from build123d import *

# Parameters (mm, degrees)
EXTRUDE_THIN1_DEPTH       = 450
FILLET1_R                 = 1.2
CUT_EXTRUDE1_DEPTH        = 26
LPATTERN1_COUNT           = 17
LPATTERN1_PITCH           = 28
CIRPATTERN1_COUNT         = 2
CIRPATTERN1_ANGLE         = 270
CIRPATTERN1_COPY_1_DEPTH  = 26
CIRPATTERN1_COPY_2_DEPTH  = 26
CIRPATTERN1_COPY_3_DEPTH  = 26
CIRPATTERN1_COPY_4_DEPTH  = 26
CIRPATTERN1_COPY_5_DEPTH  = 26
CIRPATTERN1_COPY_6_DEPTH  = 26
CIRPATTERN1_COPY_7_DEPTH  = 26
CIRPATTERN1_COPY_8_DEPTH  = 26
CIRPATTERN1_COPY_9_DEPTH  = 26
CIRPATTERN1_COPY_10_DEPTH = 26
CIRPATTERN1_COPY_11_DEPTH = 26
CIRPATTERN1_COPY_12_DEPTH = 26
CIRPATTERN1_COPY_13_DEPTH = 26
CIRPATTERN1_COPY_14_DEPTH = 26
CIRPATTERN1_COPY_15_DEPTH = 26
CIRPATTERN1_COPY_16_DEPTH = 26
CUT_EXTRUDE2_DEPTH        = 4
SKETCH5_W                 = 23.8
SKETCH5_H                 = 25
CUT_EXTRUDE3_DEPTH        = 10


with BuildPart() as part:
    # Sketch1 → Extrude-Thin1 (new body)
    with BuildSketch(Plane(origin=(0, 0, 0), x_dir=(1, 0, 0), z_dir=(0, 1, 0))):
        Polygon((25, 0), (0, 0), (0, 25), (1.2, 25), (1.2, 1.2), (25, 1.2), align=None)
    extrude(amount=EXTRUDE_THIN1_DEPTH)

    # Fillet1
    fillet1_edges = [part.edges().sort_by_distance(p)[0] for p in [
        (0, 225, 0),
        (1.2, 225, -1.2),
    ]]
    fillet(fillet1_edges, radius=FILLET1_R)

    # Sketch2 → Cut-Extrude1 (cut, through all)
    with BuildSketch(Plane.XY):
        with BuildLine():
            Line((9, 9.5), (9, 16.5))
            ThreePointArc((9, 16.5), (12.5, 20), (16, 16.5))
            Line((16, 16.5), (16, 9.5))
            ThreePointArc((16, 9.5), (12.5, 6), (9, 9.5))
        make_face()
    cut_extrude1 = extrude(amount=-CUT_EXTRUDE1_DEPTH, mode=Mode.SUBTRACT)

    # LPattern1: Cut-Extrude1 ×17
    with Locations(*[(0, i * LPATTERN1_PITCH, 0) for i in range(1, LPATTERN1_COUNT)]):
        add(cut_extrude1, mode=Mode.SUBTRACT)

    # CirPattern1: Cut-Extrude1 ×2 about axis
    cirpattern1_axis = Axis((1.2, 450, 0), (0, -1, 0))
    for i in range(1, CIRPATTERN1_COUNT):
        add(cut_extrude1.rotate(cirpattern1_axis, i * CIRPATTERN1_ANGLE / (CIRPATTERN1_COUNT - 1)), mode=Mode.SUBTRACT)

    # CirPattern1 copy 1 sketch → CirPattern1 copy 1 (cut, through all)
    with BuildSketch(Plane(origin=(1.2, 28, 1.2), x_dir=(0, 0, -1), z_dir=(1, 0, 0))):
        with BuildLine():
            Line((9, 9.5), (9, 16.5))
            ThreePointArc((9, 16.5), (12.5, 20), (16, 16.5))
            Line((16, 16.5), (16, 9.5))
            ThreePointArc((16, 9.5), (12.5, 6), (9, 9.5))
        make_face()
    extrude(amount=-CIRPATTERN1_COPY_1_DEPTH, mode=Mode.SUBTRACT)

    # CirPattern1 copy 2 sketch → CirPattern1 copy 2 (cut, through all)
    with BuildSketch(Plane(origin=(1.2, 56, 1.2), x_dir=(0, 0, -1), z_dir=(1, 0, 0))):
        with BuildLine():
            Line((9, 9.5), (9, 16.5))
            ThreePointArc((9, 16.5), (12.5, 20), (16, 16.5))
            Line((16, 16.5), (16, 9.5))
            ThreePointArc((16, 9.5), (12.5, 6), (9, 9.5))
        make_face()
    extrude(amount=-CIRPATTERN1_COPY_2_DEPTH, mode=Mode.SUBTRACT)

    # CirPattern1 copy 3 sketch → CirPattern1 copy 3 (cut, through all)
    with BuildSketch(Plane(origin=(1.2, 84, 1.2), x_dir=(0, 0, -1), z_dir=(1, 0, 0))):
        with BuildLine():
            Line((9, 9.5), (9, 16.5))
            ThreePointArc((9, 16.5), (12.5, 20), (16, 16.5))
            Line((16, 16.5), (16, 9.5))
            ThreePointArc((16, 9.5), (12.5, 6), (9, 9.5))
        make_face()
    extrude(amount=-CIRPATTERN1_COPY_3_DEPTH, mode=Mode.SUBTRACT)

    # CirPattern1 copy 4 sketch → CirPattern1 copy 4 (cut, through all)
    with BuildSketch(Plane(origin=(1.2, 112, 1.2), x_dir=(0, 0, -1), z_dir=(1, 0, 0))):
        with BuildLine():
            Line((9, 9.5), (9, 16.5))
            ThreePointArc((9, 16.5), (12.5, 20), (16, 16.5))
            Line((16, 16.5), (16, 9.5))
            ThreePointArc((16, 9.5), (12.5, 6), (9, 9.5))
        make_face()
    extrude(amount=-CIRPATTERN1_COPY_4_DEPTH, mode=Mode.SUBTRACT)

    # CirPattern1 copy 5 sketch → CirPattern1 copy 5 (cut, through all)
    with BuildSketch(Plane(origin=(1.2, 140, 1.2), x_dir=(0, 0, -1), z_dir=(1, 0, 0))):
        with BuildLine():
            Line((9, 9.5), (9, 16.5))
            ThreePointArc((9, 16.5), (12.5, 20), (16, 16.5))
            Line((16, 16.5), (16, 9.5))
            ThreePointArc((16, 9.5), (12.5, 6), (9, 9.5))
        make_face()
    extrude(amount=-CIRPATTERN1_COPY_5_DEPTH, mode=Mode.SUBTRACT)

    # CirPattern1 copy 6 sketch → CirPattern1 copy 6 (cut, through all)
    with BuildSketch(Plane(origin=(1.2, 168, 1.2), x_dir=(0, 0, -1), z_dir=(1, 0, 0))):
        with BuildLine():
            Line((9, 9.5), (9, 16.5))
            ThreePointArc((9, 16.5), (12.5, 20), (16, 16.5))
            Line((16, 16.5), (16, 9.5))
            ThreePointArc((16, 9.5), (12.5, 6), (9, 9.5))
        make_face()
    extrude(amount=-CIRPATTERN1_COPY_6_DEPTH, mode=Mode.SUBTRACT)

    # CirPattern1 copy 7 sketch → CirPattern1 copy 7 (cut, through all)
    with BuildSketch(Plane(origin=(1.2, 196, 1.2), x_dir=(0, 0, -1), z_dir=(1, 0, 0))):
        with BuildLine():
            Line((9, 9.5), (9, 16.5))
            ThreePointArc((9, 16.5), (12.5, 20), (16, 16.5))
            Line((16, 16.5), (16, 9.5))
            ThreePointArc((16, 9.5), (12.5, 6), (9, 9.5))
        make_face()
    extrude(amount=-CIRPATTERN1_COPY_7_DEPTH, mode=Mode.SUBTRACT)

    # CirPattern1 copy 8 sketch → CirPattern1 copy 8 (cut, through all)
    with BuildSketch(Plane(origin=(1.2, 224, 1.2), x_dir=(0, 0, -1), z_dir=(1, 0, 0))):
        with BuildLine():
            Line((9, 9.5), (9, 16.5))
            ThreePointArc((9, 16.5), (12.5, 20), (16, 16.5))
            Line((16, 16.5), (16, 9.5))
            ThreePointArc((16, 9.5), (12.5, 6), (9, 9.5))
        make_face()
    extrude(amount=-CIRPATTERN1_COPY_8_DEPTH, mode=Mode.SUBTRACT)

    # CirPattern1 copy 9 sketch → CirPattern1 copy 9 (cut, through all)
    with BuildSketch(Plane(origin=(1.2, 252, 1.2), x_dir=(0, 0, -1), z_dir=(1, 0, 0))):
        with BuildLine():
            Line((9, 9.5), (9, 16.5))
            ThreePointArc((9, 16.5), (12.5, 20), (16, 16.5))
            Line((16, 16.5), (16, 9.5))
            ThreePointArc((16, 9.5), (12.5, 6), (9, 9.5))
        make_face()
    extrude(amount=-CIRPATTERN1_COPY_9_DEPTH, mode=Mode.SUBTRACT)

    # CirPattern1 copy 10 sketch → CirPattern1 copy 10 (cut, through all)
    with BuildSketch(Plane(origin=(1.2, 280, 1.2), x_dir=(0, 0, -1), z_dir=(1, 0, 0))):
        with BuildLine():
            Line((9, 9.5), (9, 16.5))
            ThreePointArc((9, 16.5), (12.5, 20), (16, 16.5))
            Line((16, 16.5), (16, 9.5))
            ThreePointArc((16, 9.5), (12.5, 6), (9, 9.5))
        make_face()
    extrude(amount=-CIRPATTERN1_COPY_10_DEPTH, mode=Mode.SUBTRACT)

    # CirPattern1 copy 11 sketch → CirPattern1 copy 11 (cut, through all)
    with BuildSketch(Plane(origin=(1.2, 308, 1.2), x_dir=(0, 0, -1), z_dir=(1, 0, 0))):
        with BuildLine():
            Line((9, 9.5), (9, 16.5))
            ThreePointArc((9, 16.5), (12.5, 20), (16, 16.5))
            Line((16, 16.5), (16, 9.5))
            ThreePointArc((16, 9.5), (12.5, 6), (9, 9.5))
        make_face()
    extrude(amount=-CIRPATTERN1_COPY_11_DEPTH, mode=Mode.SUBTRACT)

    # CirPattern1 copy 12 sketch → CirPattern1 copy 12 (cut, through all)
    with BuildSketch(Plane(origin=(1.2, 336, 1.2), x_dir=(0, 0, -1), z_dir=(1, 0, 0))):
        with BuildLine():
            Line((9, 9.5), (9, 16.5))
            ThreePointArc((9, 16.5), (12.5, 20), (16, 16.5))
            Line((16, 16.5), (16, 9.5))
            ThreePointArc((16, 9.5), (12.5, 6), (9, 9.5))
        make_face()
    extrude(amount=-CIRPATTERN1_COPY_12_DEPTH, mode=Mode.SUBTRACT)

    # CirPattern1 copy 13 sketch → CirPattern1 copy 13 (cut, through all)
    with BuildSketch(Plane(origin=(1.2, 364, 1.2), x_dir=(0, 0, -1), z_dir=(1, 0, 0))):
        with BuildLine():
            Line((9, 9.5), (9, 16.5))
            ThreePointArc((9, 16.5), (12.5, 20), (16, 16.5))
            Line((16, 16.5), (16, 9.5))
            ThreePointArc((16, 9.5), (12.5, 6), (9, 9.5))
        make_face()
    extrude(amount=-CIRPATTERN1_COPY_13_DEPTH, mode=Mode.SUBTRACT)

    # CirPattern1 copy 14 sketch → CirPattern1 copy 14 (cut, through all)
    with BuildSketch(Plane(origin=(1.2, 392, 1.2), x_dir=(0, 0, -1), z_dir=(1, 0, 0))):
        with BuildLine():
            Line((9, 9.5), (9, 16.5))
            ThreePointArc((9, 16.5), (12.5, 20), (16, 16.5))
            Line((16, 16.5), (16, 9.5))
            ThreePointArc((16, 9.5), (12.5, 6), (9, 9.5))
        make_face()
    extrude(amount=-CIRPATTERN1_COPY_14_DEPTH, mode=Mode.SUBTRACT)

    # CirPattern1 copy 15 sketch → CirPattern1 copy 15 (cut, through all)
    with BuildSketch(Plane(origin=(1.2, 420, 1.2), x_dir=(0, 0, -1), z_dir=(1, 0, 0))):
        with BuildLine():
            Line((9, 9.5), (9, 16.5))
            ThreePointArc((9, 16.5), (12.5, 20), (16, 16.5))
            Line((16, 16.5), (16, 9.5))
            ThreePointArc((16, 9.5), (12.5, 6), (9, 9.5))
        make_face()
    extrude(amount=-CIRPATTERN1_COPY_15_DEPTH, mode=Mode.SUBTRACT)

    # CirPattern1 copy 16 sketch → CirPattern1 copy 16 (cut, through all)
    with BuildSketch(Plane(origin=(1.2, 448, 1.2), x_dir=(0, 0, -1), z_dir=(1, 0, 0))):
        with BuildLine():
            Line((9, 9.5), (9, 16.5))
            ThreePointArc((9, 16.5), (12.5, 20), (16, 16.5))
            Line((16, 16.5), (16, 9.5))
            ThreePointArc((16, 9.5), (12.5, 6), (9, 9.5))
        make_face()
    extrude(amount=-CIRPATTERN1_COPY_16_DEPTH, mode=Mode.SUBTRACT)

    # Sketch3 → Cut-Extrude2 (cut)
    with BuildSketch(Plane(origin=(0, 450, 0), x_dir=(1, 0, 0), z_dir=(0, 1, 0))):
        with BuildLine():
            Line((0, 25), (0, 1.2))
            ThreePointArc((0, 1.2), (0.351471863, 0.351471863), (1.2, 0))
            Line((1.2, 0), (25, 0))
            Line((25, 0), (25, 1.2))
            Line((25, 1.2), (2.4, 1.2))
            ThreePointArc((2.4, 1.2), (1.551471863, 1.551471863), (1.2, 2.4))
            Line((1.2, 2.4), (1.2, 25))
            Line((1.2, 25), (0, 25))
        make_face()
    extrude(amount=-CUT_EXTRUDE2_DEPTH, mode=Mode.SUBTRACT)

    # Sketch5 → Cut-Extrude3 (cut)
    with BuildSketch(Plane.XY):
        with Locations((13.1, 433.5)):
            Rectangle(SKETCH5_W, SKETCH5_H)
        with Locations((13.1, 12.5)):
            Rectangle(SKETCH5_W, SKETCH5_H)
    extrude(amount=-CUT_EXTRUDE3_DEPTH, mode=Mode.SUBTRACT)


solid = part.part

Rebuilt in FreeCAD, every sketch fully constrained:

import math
import FreeCAD as App
import Part
import Sketcher


def edges_at(feature, points):
    """Names of the edges that pass closest to the given points."""
    edges = feature.Shape.Edges
    near = lambda p: min(range(len(edges)), key=lambda i: edges[i].distToShape(Part.Vertex(*p))[0])
    return sorted({f"Edge{near(p) + 1}" for p in points})


def add_polygon(sketch, points):
    """Adds a closed chain of lines whose ends are joined by coincident constraints."""
    first, n = sketch.GeometryCount, len(points)
    for a, b in zip(points, points[1:] + points[:1]):
        sketch.addGeometry(Part.LineSegment(App.Vector(*a, 0), App.Vector(*b, 0)), False)
    for i in range(n):
        sketch.addConstraint(Sketcher.Constraint("Coincident", first + i, 2, first + (i + 1) % n, 1))

doc = App.newDocument("Part")
body = doc.addObject("PartDesign::Body", "Body")

sketch1 = body.newObject("Sketcher::SketchObject", "Sketch")
sketch1.AttachmentSupport = (doc.getObject("XZ_Plane"), [""])
sketch1.MapMode = "FlatFace"
add_polygon(sketch1, [(0, 0), (25, 0), (25, -1.2), (1.2, -1.2), (1.2, -25), (0, -25)])
sketch1.addConstraint([
    Sketcher.Constraint("Horizontal", 0),
    Sketcher.Constraint("Vertical", 1),
    Sketcher.Constraint("Horizontal", 2),
    Sketcher.Constraint("Vertical", 3),
    Sketcher.Constraint("Horizontal", 4),
    Sketcher.Constraint("Vertical", 5),
    Sketcher.Constraint("Coincident", 5, 2, -1, 1),
    Sketcher.Constraint("Equal", 4, 1),
    Sketcher.Constraint("Equal", 2, 3),
    Sketcher.Constraint("DistanceX", 0, 1, 0, 2, 25.0),
    Sketcher.Constraint("DistanceX", 2, 2, 2, 1, 23.8),
])
pad1 = body.newObject("PartDesign::Pad", "Pad")
pad1.Profile = sketch1
pad1.Length = 450
pad1.Reversed = True
doc.recompute()

fillet = body.newObject("PartDesign::Fillet", "Fillet")
fillet.Base = (pad1, edges_at(pad1, [(0, 225, 0), (1.2, 225, -1.2)]))
fillet.Radius = 1.2

sketch2 = body.newObject("Sketcher::SketchObject", "Sketch001")
sketch2.AttachmentSupport = (doc.getObject("XY_Plane"), [""])
sketch2.MapMode = "FlatFace"
sketch2.addGeometry([
    Part.LineSegment(App.Vector(9, 16.5, 0), App.Vector(9, 9.5, 0)),
    Part.ArcOfCircle(Part.Circle(App.Vector(12.5, 9.5, 0), App.Vector(0, 0, 1), 3.5), math.radians(180), math.radians(360)),
    Part.LineSegment(App.Vector(16, 9.5, 0), App.Vector(16, 16.5, 0)),
    Part.ArcOfCircle(Part.Circle(App.Vector(12.5, 16.5, 0), App.Vector(0, 0, 1), 3.5), math.radians(0), math.radians(180)),
], False)
sketch2.addConstraint([
    Sketcher.Constraint("Tangent", 0, 2, 1, 1),
    Sketcher.Constraint("Tangent", 1, 2, 2, 1),
    Sketcher.Constraint("Tangent", 2, 2, 3, 1),
    Sketcher.Constraint("Tangent", 3, 2, 0, 1),
    Sketcher.Constraint("Vertical", 0),
    Sketcher.Constraint("Vertical", 2),
    Sketcher.Constraint("Radius", 1, 3.5),
    Sketcher.Constraint("DistanceY", 0, 2, 0, 1, 7.0),
    Sketcher.Constraint("DistanceX", -1, 1, 0, 2, 9.0),
    Sketcher.Constraint("DistanceY", -1, 1, 1, 3, 9.5),
])
pocket1 = body.newObject("PartDesign::Pocket", "Pocket")
pocket1.Profile = sketch2
pocket1.Type = "ThroughAll"
doc.recompute()

linearpattern = body.newObject("PartDesign::LinearPattern", "LinearPattern")
linearpattern.Originals = [pocket1]
linearpattern.Direction = (doc.getObject("Y_Axis"), [""])
linearpattern.Mode = "offset"
linearpattern.Offset = 28
linearpattern.Occurrences = 17
body.Tip = linearpattern
doc.recompute()

datumline = body.newObject("PartDesign::Line", "DatumLine")
datumline.Placement = App.Placement(App.Vector(1.2, 0, 0), App.Rotation(App.Vector(0, 0, 1), App.Vector(0, -1, 0)))
polarpattern = body.newObject("PartDesign::PolarPattern", "PolarPattern")
polarpattern.Originals = [pocket1]
polarpattern.Axis = (datumline, [""])
polarpattern.Angle = 270
polarpattern.Occurrences = 2
body.Tip = polarpattern

sketch3 = body.newObject("Sketcher::SketchObject", "Sketch002")
sketch3.AttachmentSupport = (doc.getObject("YZ_Plane"), [""])
sketch3.MapMode = "FlatFace"
sketch3.AttachmentOffset = App.Placement(App.Vector(0, 0, 1.2), App.Rotation())
sketch3.addGeometry([
    Part.LineSegment(App.Vector(44.5, -7.8, 0), App.Vector(37.5, -7.8, 0)),
    Part.ArcOfCircle(Part.Circle(App.Vector(37.5, -11.3, 0), App.Vector(0, 0, 1), 3.5), math.radians(90), math.radians(270)),
    Part.LineSegment(App.Vector(37.5, -14.8, 0), App.Vector(44.5, -14.8, 0)),
    Part.ArcOfCircle(Part.Circle(App.Vector(44.5, -11.3, 0), App.Vector(0, 0, 1), 3.5), math.radians(-90), math.radians(90)),
], False)
sketch3.addConstraint([
    Sketcher.Constraint("Tangent", 0, 2, 1, 1),
    Sketcher.Constraint("Tangent", 1, 2, 2, 1),
    Sketcher.Constraint("Tangent", 2, 2, 3, 1),
    Sketcher.Constraint("Tangent", 3, 2, 0, 1),
    Sketcher.Constraint("Horizontal", 0),
    Sketcher.Constraint("Horizontal", 2),
    Sketcher.Constraint("Radius", 1, 3.5),
    Sketcher.Constraint("DistanceX", 0, 2, 0, 1, 7.0),
    Sketcher.Constraint("DistanceX", -1, 1, 1, 3, 37.5),
    Sketcher.Constraint("DistanceY", 1, 3, -1, 1, 11.3),
])
pocket2 = body.newObject("PartDesign::Pocket", "Pocket001")
pocket2.Profile = sketch3
pocket2.Type = "ThroughAll"

sketch4 = body.newObject("Sketcher::SketchObject", "Sketch003")
sketch4.AttachmentSupport = (doc.getObject("YZ_Plane"), [""])
sketch4.MapMode = "FlatFace"
sketch4.AttachmentOffset = App.Placement(App.Vector(0, 0, 1.2), App.Rotation())
sketch4.addGeometry([
    Part.LineSegment(App.Vector(72.5, -7.8, 0), App.Vector(65.5, -7.8, 0)),
    Part.ArcOfCircle(Part.Circle(App.Vector(65.5, -11.3, 0), App.Vector(0, 0, 1), 3.5), math.radians(90), math.radians(270)),
    Part.LineSegment(App.Vector(65.5, -14.8, 0), App.Vector(72.5, -14.8, 0)),
    Part.ArcOfCircle(Part.Circle(App.Vector(72.5, -11.3, 0), App.Vector(0, 0, 1), 3.5), math.radians(-90), math.radians(90)),
], False)
sketch4.addConstraint([
    Sketcher.Constraint("Tangent", 0, 2, 1, 1),
    Sketcher.Constraint("Tangent", 1, 2, 2, 1),
    Sketcher.Constraint("Tangent", 2, 2, 3, 1),
    Sketcher.Constraint("Tangent", 3, 2, 0, 1),
    Sketcher.Constraint("Horizontal", 0),
    Sketcher.Constraint("Horizontal", 2),
    Sketcher.Constraint("Radius", 1, 3.5),
    Sketcher.Constraint("DistanceX", 0, 2, 0, 1, 7.0),
    Sketcher.Constraint("DistanceX", -1, 1, 1, 3, 65.5),
    Sketcher.Constraint("DistanceY", 1, 3, -1, 1, 11.3),
])
pocket3 = body.newObject("PartDesign::Pocket", "Pocket002")
pocket3.Profile = sketch4
pocket3.Type = "ThroughAll"

sketch5 = body.newObject("Sketcher::SketchObject", "Sketch004")
sketch5.AttachmentSupport = (doc.getObject("YZ_Plane"), [""])
sketch5.MapMode = "FlatFace"
sketch5.AttachmentOffset = App.Placement(App.Vector(0, 0, 1.2), App.Rotation())
sketch5.addGeometry([
    Part.LineSegment(App.Vector(100.5, -7.8, 0), App.Vector(93.5, -7.8, 0)),
    Part.ArcOfCircle(Part.Circle(App.Vector(93.5, -11.3, 0), App.Vector(0, 0, 1), 3.5), math.radians(90), math.radians(270)),
    Part.LineSegment(App.Vector(93.5, -14.8, 0), App.Vector(100.5, -14.8, 0)),
    Part.ArcOfCircle(Part.Circle(App.Vector(100.5, -11.3, 0), App.Vector(0, 0, 1), 3.5), math.radians(-90), math.radians(90)),
], False)
sketch5.addConstraint([
    Sketcher.Constraint("Tangent", 0, 2, 1, 1),
    Sketcher.Constraint("Tangent", 1, 2, 2, 1),
    Sketcher.Constraint("Tangent", 2, 2, 3, 1),
    Sketcher.Constraint("Tangent", 3, 2, 0, 1),
    Sketcher.Constraint("Horizontal", 0),
    Sketcher.Constraint("Horizontal", 2),
    Sketcher.Constraint("Radius", 1, 3.5),
    Sketcher.Constraint("DistanceX", 0, 2, 0, 1, 7.0),
    Sketcher.Constraint("DistanceX", -1, 1, 1, 3, 93.5),
    Sketcher.Constraint("DistanceY", 1, 3, -1, 1, 11.3),
])
pocket4 = body.newObject("PartDesign::Pocket", "Pocket003")
pocket4.Profile = sketch5
pocket4.Type = "ThroughAll"

sketch6 = body.newObject("Sketcher::SketchObject", "Sketch005")
sketch6.AttachmentSupport = (doc.getObject("YZ_Plane"), [""])
sketch6.MapMode = "FlatFace"
sketch6.AttachmentOffset = App.Placement(App.Vector(0, 0, 1.2), App.Rotation())
sketch6.addGeometry([
    Part.LineSegment(App.Vector(128.5, -7.8, 0), App.Vector(121.5, -7.8, 0)),
    Part.ArcOfCircle(Part.Circle(App.Vector(121.5, -11.3, 0), App.Vector(0, 0, 1), 3.5), math.radians(90), math.radians(270)),
    Part.LineSegment(App.Vector(121.5, -14.8, 0), App.Vector(128.5, -14.8, 0)),
    Part.ArcOfCircle(Part.Circle(App.Vector(128.5, -11.3, 0), App.Vector(0, 0, 1), 3.5), math.radians(-90), math.radians(90)),
], False)
sketch6.addConstraint([
    Sketcher.Constraint("Tangent", 0, 2, 1, 1),
    Sketcher.Constraint("Tangent", 1, 2, 2, 1),
    Sketcher.Constraint("Tangent", 2, 2, 3, 1),
    Sketcher.Constraint("Tangent", 3, 2, 0, 1),
    Sketcher.Constraint("Horizontal", 0),
    Sketcher.Constraint("Horizontal", 2),
    Sketcher.Constraint("Radius", 1, 3.5),
    Sketcher.Constraint("DistanceX", 0, 2, 0, 1, 7.0),
    Sketcher.Constraint("DistanceX", -1, 1, 1, 3, 121.5),
    Sketcher.Constraint("DistanceY", 1, 3, -1, 1, 11.3),
])
pocket5 = body.newObject("PartDesign::Pocket", "Pocket004")
pocket5.Profile = sketch6
pocket5.Type = "ThroughAll"

sketch7 = body.newObject("Sketcher::SketchObject", "Sketch006")
sketch7.AttachmentSupport = (doc.getObject("YZ_Plane"), [""])
sketch7.MapMode = "FlatFace"
sketch7.AttachmentOffset = App.Placement(App.Vector(0, 0, 1.2), App.Rotation())
sketch7.addGeometry([
    Part.LineSegment(App.Vector(156.5, -7.8, 0), App.Vector(149.5, -7.8, 0)),
    Part.ArcOfCircle(Part.Circle(App.Vector(149.5, -11.3, 0), App.Vector(0, 0, 1), 3.5), math.radians(90), math.radians(270)),
    Part.LineSegment(App.Vector(149.5, -14.8, 0), App.Vector(156.5, -14.8, 0)),
    Part.ArcOfCircle(Part.Circle(App.Vector(156.5, -11.3, 0), App.Vector(0, 0, 1), 3.5), math.radians(-90), math.radians(90)),
], False)
sketch7.addConstraint([
    Sketcher.Constraint("Tangent", 0, 2, 1, 1),
    Sketcher.Constraint("Tangent", 1, 2, 2, 1),
    Sketcher.Constraint("Tangent", 2, 2, 3, 1),
    Sketcher.Constraint("Tangent", 3, 2, 0, 1),
    Sketcher.Constraint("Horizontal", 0),
    Sketcher.Constraint("Horizontal", 2),
    Sketcher.Constraint("Radius", 1, 3.5),
    Sketcher.Constraint("DistanceX", 0, 2, 0, 1, 7.0),
    Sketcher.Constraint("DistanceX", -1, 1, 1, 3, 149.5),
    Sketcher.Constraint("DistanceY", 1, 3, -1, 1, 11.3),
])
pocket6 = body.newObject("PartDesign::Pocket", "Pocket005")
pocket6.Profile = sketch7
pocket6.Type = "ThroughAll"

sketch8 = body.newObject("Sketcher::SketchObject", "Sketch007")
sketch8.AttachmentSupport = (doc.getObject("YZ_Plane"), [""])
sketch8.MapMode = "FlatFace"
sketch8.AttachmentOffset = App.Placement(App.Vector(0, 0, 1.2), App.Rotation())
sketch8.addGeometry([
    Part.LineSegment(App.Vector(184.5, -7.8, 0), App.Vector(177.5, -7.8, 0)),
    Part.ArcOfCircle(Part.Circle(App.Vector(177.5, -11.3, 0), App.Vector(0, 0, 1), 3.5), math.radians(90), math.radians(270)),
    Part.LineSegment(App.Vector(177.5, -14.8, 0), App.Vector(184.5, -14.8, 0)),
    Part.ArcOfCircle(Part.Circle(App.Vector(184.5, -11.3, 0), App.Vector(0, 0, 1), 3.5), math.radians(-90), math.radians(90)),
], False)
sketch8.addConstraint([
    Sketcher.Constraint("Tangent", 0, 2, 1, 1),
    Sketcher.Constraint("Tangent", 1, 2, 2, 1),
    Sketcher.Constraint("Tangent", 2, 2, 3, 1),
    Sketcher.Constraint("Tangent", 3, 2, 0, 1),
    Sketcher.Constraint("Horizontal", 0),
    Sketcher.Constraint("Horizontal", 2),
    Sketcher.Constraint("Radius", 1, 3.5),
    Sketcher.Constraint("DistanceX", 0, 2, 0, 1, 7.0),
    Sketcher.Constraint("DistanceX", -1, 1, 1, 3, 177.5),
    Sketcher.Constraint("DistanceY", 1, 3, -1, 1, 11.3),
])
pocket7 = body.newObject("PartDesign::Pocket", "Pocket006")
pocket7.Profile = sketch8
pocket7.Type = "ThroughAll"

sketch9 = body.newObject("Sketcher::SketchObject", "Sketch008")
sketch9.AttachmentSupport = (doc.getObject("YZ_Plane"), [""])
sketch9.MapMode = "FlatFace"
sketch9.AttachmentOffset = App.Placement(App.Vector(0, 0, 1.2), App.Rotation())
sketch9.addGeometry([
    Part.LineSegment(App.Vector(212.5, -7.8, 0), App.Vector(205.5, -7.8, 0)),
    Part.ArcOfCircle(Part.Circle(App.Vector(205.5, -11.3, 0), App.Vector(0, 0, 1), 3.5), math.radians(90), math.radians(270)),
    Part.LineSegment(App.Vector(205.5, -14.8, 0), App.Vector(212.5, -14.8, 0)),
    Part.ArcOfCircle(Part.Circle(App.Vector(212.5, -11.3, 0), App.Vector(0, 0, 1), 3.5), math.radians(-90), math.radians(90)),
], False)
sketch9.addConstraint([
    Sketcher.Constraint("Tangent", 0, 2, 1, 1),
    Sketcher.Constraint("Tangent", 1, 2, 2, 1),
    Sketcher.Constraint("Tangent", 2, 2, 3, 1),
    Sketcher.Constraint("Tangent", 3, 2, 0, 1),
    Sketcher.Constraint("Horizontal", 0),
    Sketcher.Constraint("Horizontal", 2),
    Sketcher.Constraint("Radius", 1, 3.5),
    Sketcher.Constraint("DistanceX", 0, 2, 0, 1, 7.0),
    Sketcher.Constraint("DistanceX", -1, 1, 1, 3, 205.5),
    Sketcher.Constraint("DistanceY", 1, 3, -1, 1, 11.3),
])
pocket8 = body.newObject("PartDesign::Pocket", "Pocket007")
pocket8.Profile = sketch9
pocket8.Type = "ThroughAll"

sketch10 = body.newObject("Sketcher::SketchObject", "Sketch009")
sketch10.AttachmentSupport = (doc.getObject("YZ_Plane"), [""])
sketch10.MapMode = "FlatFace"
sketch10.AttachmentOffset = App.Placement(App.Vector(0, 0, 1.2), App.Rotation())
sketch10.addGeometry([
    Part.LineSegment(App.Vector(240.5, -7.8, 0), App.Vector(233.5, -7.8, 0)),
    Part.ArcOfCircle(Part.Circle(App.Vector(233.5, -11.3, 0), App.Vector(0, 0, 1), 3.5), math.radians(90), math.radians(270)),
    Part.LineSegment(App.Vector(233.5, -14.8, 0), App.Vector(240.5, -14.8, 0)),
    Part.ArcOfCircle(Part.Circle(App.Vector(240.5, -11.3, 0), App.Vector(0, 0, 1), 3.5), math.radians(-90), math.radians(90)),
], False)
sketch10.addConstraint([
    Sketcher.Constraint("Tangent", 0, 2, 1, 1),
    Sketcher.Constraint("Tangent", 1, 2, 2, 1),
    Sketcher.Constraint("Tangent", 2, 2, 3, 1),
    Sketcher.Constraint("Tangent", 3, 2, 0, 1),
    Sketcher.Constraint("Horizontal", 0),
    Sketcher.Constraint("Horizontal", 2),
    Sketcher.Constraint("Radius", 1, 3.5),
    Sketcher.Constraint("DistanceX", 0, 2, 0, 1, 7.0),
    Sketcher.Constraint("DistanceX", -1, 1, 1, 3, 233.5),
    Sketcher.Constraint("DistanceY", 1, 3, -1, 1, 11.3),
])
pocket9 = body.newObject("PartDesign::Pocket", "Pocket008")
pocket9.Profile = sketch10
pocket9.Type = "ThroughAll"

sketch11 = body.newObject("Sketcher::SketchObject", "Sketch010")
sketch11.AttachmentSupport = (doc.getObject("YZ_Plane"), [""])
sketch11.MapMode = "FlatFace"
sketch11.AttachmentOffset = App.Placement(App.Vector(0, 0, 1.2), App.Rotation())
sketch11.addGeometry([
    Part.LineSegment(App.Vector(268.5, -7.8, 0), App.Vector(261.5, -7.8, 0)),
    Part.ArcOfCircle(Part.Circle(App.Vector(261.5, -11.3, 0), App.Vector(0, 0, 1), 3.5), math.radians(90), math.radians(270)),
    Part.LineSegment(App.Vector(261.5, -14.8, 0), App.Vector(268.5, -14.8, 0)),
    Part.ArcOfCircle(Part.Circle(App.Vector(268.5, -11.3, 0), App.Vector(0, 0, 1), 3.5), math.radians(-90), math.radians(90)),
], False)
sketch11.addConstraint([
    Sketcher.Constraint("Tangent", 0, 2, 1, 1),
    Sketcher.Constraint("Tangent", 1, 2, 2, 1),
    Sketcher.Constraint("Tangent", 2, 2, 3, 1),
    Sketcher.Constraint("Tangent", 3, 2, 0, 1),
    Sketcher.Constraint("Horizontal", 0),
    Sketcher.Constraint("Horizontal", 2),
    Sketcher.Constraint("Radius", 1, 3.5),
    Sketcher.Constraint("DistanceX", 0, 2, 0, 1, 7.0),
    Sketcher.Constraint("DistanceX", -1, 1, 1, 3, 261.5),
    Sketcher.Constraint("DistanceY", 1, 3, -1, 1, 11.3),
])
pocket10 = body.newObject("PartDesign::Pocket", "Pocket009")
pocket10.Profile = sketch11
pocket10.Type = "ThroughAll"

sketch12 = body.newObject("Sketcher::SketchObject", "Sketch011")
sketch12.AttachmentSupport = (doc.getObject("YZ_Plane"), [""])
sketch12.MapMode = "FlatFace"
sketch12.AttachmentOffset = App.Placement(App.Vector(0, 0, 1.2), App.Rotation())
sketch12.addGeometry([
    Part.LineSegment(App.Vector(296.5, -7.8, 0), App.Vector(289.5, -7.8, 0)),
    Part.ArcOfCircle(Part.Circle(App.Vector(289.5, -11.3, 0), App.Vector(0, 0, 1), 3.5), math.radians(90), math.radians(270)),
    Part.LineSegment(App.Vector(289.5, -14.8, 0), App.Vector(296.5, -14.8, 0)),
    Part.ArcOfCircle(Part.Circle(App.Vector(296.5, -11.3, 0), App.Vector(0, 0, 1), 3.5), math.radians(-90), math.radians(90)),
], False)
sketch12.addConstraint([
    Sketcher.Constraint("Tangent", 0, 2, 1, 1),
    Sketcher.Constraint("Tangent", 1, 2, 2, 1),
    Sketcher.Constraint("Tangent", 2, 2, 3, 1),
    Sketcher.Constraint("Tangent", 3, 2, 0, 1),
    Sketcher.Constraint("Horizontal", 0),
    Sketcher.Constraint("Horizontal", 2),
    Sketcher.Constraint("Radius", 1, 3.5),
    Sketcher.Constraint("DistanceX", 0, 2, 0, 1, 7.0),
    Sketcher.Constraint("DistanceX", -1, 1, 1, 3, 289.5),
    Sketcher.Constraint("DistanceY", 1, 3, -1, 1, 11.3),
])
pocket11 = body.newObject("PartDesign::Pocket", "Pocket010")
pocket11.Profile = sketch12
pocket11.Type = "ThroughAll"

sketch13 = body.newObject("Sketcher::SketchObject", "Sketch012")
sketch13.AttachmentSupport = (doc.getObject("YZ_Plane"), [""])
sketch13.MapMode = "FlatFace"
sketch13.AttachmentOffset = App.Placement(App.Vector(0, 0, 1.2), App.Rotation())
sketch13.addGeometry([
    Part.LineSegment(App.Vector(324.5, -7.8, 0), App.Vector(317.5, -7.8, 0)),
    Part.ArcOfCircle(Part.Circle(App.Vector(317.5, -11.3, 0), App.Vector(0, 0, 1), 3.5), math.radians(90), math.radians(270)),
    Part.LineSegment(App.Vector(317.5, -14.8, 0), App.Vector(324.5, -14.8, 0)),
    Part.ArcOfCircle(Part.Circle(App.Vector(324.5, -11.3, 0), App.Vector(0, 0, 1), 3.5), math.radians(-90), math.radians(90)),
], False)
sketch13.addConstraint([
    Sketcher.Constraint("Tangent", 0, 2, 1, 1),
    Sketcher.Constraint("Tangent", 1, 2, 2, 1),
    Sketcher.Constraint("Tangent", 2, 2, 3, 1),
    Sketcher.Constraint("Tangent", 3, 2, 0, 1),
    Sketcher.Constraint("Horizontal", 0),
    Sketcher.Constraint("Horizontal", 2),
    Sketcher.Constraint("Radius", 1, 3.5),
    Sketcher.Constraint("DistanceX", 0, 2, 0, 1, 7.0),
    Sketcher.Constraint("DistanceX", -1, 1, 1, 3, 317.5),
    Sketcher.Constraint("DistanceY", 1, 3, -1, 1, 11.3),
])
pocket12 = body.newObject("PartDesign::Pocket", "Pocket011")
pocket12.Profile = sketch13
pocket12.Type = "ThroughAll"

sketch14 = body.newObject("Sketcher::SketchObject", "Sketch013")
sketch14.AttachmentSupport = (doc.getObject("YZ_Plane"), [""])
sketch14.MapMode = "FlatFace"
sketch14.AttachmentOffset = App.Placement(App.Vector(0, 0, 1.2), App.Rotation())
sketch14.addGeometry([
    Part.LineSegment(App.Vector(352.5, -7.8, 0), App.Vector(345.5, -7.8, 0)),
    Part.ArcOfCircle(Part.Circle(App.Vector(345.5, -11.3, 0), App.Vector(0, 0, 1), 3.5), math.radians(90), math.radians(270)),
    Part.LineSegment(App.Vector(345.5, -14.8, 0), App.Vector(352.5, -14.8, 0)),
    Part.ArcOfCircle(Part.Circle(App.Vector(352.5, -11.3, 0), App.Vector(0, 0, 1), 3.5), math.radians(-90), math.radians(90)),
], False)
sketch14.addConstraint([
    Sketcher.Constraint("Tangent", 0, 2, 1, 1),
    Sketcher.Constraint("Tangent", 1, 2, 2, 1),
    Sketcher.Constraint("Tangent", 2, 2, 3, 1),
    Sketcher.Constraint("Tangent", 3, 2, 0, 1),
    Sketcher.Constraint("Horizontal", 0),
    Sketcher.Constraint("Horizontal", 2),
    Sketcher.Constraint("Radius", 1, 3.5),
    Sketcher.Constraint("DistanceX", 0, 2, 0, 1, 7.0),
    Sketcher.Constraint("DistanceX", -1, 1, 1, 3, 345.5),
    Sketcher.Constraint("DistanceY", 1, 3, -1, 1, 11.3),
])
pocket13 = body.newObject("PartDesign::Pocket", "Pocket012")
pocket13.Profile = sketch14
pocket13.Type = "ThroughAll"

sketch15 = body.newObject("Sketcher::SketchObject", "Sketch014")
sketch15.AttachmentSupport = (doc.getObject("YZ_Plane"), [""])
sketch15.MapMode = "FlatFace"
sketch15.AttachmentOffset = App.Placement(App.Vector(0, 0, 1.2), App.Rotation())
sketch15.addGeometry([
    Part.LineSegment(App.Vector(380.5, -7.8, 0), App.Vector(373.5, -7.8, 0)),
    Part.ArcOfCircle(Part.Circle(App.Vector(373.5, -11.3, 0), App.Vector(0, 0, 1), 3.5), math.radians(90), math.radians(270)),
    Part.LineSegment(App.Vector(373.5, -14.8, 0), App.Vector(380.5, -14.8, 0)),
    Part.ArcOfCircle(Part.Circle(App.Vector(380.5, -11.3, 0), App.Vector(0, 0, 1), 3.5), math.radians(-90), math.radians(90)),
], False)
sketch15.addConstraint([
    Sketcher.Constraint("Tangent", 0, 2, 1, 1),
    Sketcher.Constraint("Tangent", 1, 2, 2, 1),
    Sketcher.Constraint("Tangent", 2, 2, 3, 1),
    Sketcher.Constraint("Tangent", 3, 2, 0, 1),
    Sketcher.Constraint("Horizontal", 0),
    Sketcher.Constraint("Horizontal", 2),
    Sketcher.Constraint("Radius", 1, 3.5),
    Sketcher.Constraint("DistanceX", 0, 2, 0, 1, 7.0),
    Sketcher.Constraint("DistanceX", -1, 1, 1, 3, 373.5),
    Sketcher.Constraint("DistanceY", 1, 3, -1, 1, 11.3),
])
pocket14 = body.newObject("PartDesign::Pocket", "Pocket013")
pocket14.Profile = sketch15
pocket14.Type = "ThroughAll"

sketch16 = body.newObject("Sketcher::SketchObject", "Sketch015")
sketch16.AttachmentSupport = (doc.getObject("YZ_Plane"), [""])
sketch16.MapMode = "FlatFace"
sketch16.AttachmentOffset = App.Placement(App.Vector(0, 0, 1.2), App.Rotation())
sketch16.addGeometry([
    Part.LineSegment(App.Vector(408.5, -7.8, 0), App.Vector(401.5, -7.8, 0)),
    Part.ArcOfCircle(Part.Circle(App.Vector(401.5, -11.3, 0), App.Vector(0, 0, 1), 3.5), math.radians(90), math.radians(270)),
    Part.LineSegment(App.Vector(401.5, -14.8, 0), App.Vector(408.5, -14.8, 0)),
    Part.ArcOfCircle(Part.Circle(App.Vector(408.5, -11.3, 0), App.Vector(0, 0, 1), 3.5), math.radians(-90), math.radians(90)),
], False)
sketch16.addConstraint([
    Sketcher.Constraint("Tangent", 0, 2, 1, 1),
    Sketcher.Constraint("Tangent", 1, 2, 2, 1),
    Sketcher.Constraint("Tangent", 2, 2, 3, 1),
    Sketcher.Constraint("Tangent", 3, 2, 0, 1),
    Sketcher.Constraint("Horizontal", 0),
    Sketcher.Constraint("Horizontal", 2),
    Sketcher.Constraint("Radius", 1, 3.5),
    Sketcher.Constraint("DistanceX", 0, 2, 0, 1, 7.0),
    Sketcher.Constraint("DistanceX", -1, 1, 1, 3, 401.5),
    Sketcher.Constraint("DistanceY", 1, 3, -1, 1, 11.3),
])
pocket15 = body.newObject("PartDesign::Pocket", "Pocket014")
pocket15.Profile = sketch16
pocket15.Type = "ThroughAll"

sketch17 = body.newObject("Sketcher::SketchObject", "Sketch016")
sketch17.AttachmentSupport = (doc.getObject("YZ_Plane"), [""])
sketch17.MapMode = "FlatFace"
sketch17.AttachmentOffset = App.Placement(App.Vector(0, 0, 1.2), App.Rotation())
sketch17.addGeometry([
    Part.LineSegment(App.Vector(436.5, -7.8, 0), App.Vector(429.5, -7.8, 0)),
    Part.ArcOfCircle(Part.Circle(App.Vector(429.5, -11.3, 0), App.Vector(0, 0, 1), 3.5), math.radians(90), math.radians(270)),
    Part.LineSegment(App.Vector(429.5, -14.8, 0), App.Vector(436.5, -14.8, 0)),
    Part.ArcOfCircle(Part.Circle(App.Vector(436.5, -11.3, 0), App.Vector(0, 0, 1), 3.5), math.radians(-90), math.radians(90)),
], False)
sketch17.addConstraint([
    Sketcher.Constraint("Tangent", 0, 2, 1, 1),
    Sketcher.Constraint("Tangent", 1, 2, 2, 1),
    Sketcher.Constraint("Tangent", 2, 2, 3, 1),
    Sketcher.Constraint("Tangent", 3, 2, 0, 1),
    Sketcher.Constraint("Horizontal", 0),
    Sketcher.Constraint("Horizontal", 2),
    Sketcher.Constraint("Radius", 1, 3.5),
    Sketcher.Constraint("DistanceX", 0, 2, 0, 1, 7.0),
    Sketcher.Constraint("DistanceX", -1, 1, 1, 3, 429.5),
    Sketcher.Constraint("DistanceY", 1, 3, -1, 1, 11.3),
])
pocket16 = body.newObject("PartDesign::Pocket", "Pocket015")
pocket16.Profile = sketch17
pocket16.Type = "ThroughAll"

sketch18 = body.newObject("Sketcher::SketchObject", "Sketch017")
sketch18.AttachmentSupport = (doc.getObject("YZ_Plane"), [""])
sketch18.MapMode = "FlatFace"
sketch18.AttachmentOffset = App.Placement(App.Vector(0, 0, 1.2), App.Rotation())
sketch18.addGeometry([
    Part.LineSegment(App.Vector(464.5, -7.8, 0), App.Vector(457.5, -7.8, 0)),
    Part.ArcOfCircle(Part.Circle(App.Vector(457.5, -11.3, 0), App.Vector(0, 0, 1), 3.5), math.radians(90), math.radians(270)),
    Part.LineSegment(App.Vector(457.5, -14.8, 0), App.Vector(464.5, -14.8, 0)),
    Part.ArcOfCircle(Part.Circle(App.Vector(464.5, -11.3, 0), App.Vector(0, 0, 1), 3.5), math.radians(-90), math.radians(90)),
], False)
sketch18.addConstraint([
    Sketcher.Constraint("Tangent", 0, 2, 1, 1),
    Sketcher.Constraint("Tangent", 1, 2, 2, 1),
    Sketcher.Constraint("Tangent", 2, 2, 3, 1),
    Sketcher.Constraint("Tangent", 3, 2, 0, 1),
    Sketcher.Constraint("Horizontal", 0),
    Sketcher.Constraint("Horizontal", 2),
    Sketcher.Constraint("Radius", 1, 3.5),
    Sketcher.Constraint("DistanceX", 0, 2, 0, 1, 7.0),
    Sketcher.Constraint("DistanceX", -1, 1, 1, 3, 457.5),
    Sketcher.Constraint("DistanceY", 1, 3, -1, 1, 11.3),
])
pocket17 = body.newObject("PartDesign::Pocket", "Pocket016")
pocket17.Profile = sketch18
pocket17.Type = "ThroughAll"

sketch19 = body.newObject("Sketcher::SketchObject", "Sketch018")
sketch19.AttachmentSupport = (doc.getObject("XZ_Plane"), [""])
sketch19.MapMode = "FlatFace"
sketch19.AttachmentOffset = App.Placement(App.Vector(0, 0, -450), App.Rotation())
sketch19.addGeometry([
    Part.LineSegment(App.Vector(0, -25, 0), App.Vector(0, -1.2, 0)),
    Part.ArcOfCircle(Part.Circle(App.Vector(1.2, -1.2, 0), App.Vector(0, 0, 1), 1.2), math.radians(90), math.radians(180)),
    Part.LineSegment(App.Vector(1.2, 0, 0), App.Vector(25, 0, 0)),
    Part.LineSegment(App.Vector(25, 0, 0), App.Vector(25, -1.2, 0)),
    Part.LineSegment(App.Vector(25, -1.2, 0), App.Vector(2.4, -1.2, 0)),
    Part.ArcOfCircle(Part.Circle(App.Vector(2.4, -2.4, 0), App.Vector(0, 0, 1), 1.2), math.radians(90), math.radians(180)),
    Part.LineSegment(App.Vector(1.2, -2.4, 0), App.Vector(1.2, -25, 0)),
    Part.LineSegment(App.Vector(1.2, -25, 0), App.Vector(0, -25, 0)),
], False)
sketch19.addConstraint([
    Sketcher.Constraint("Tangent", 0, 2, 1, 2),
    Sketcher.Constraint("Tangent", 1, 1, 2, 1),
    Sketcher.Constraint("Coincident", 2, 2, 3, 1),
    Sketcher.Constraint("Coincident", 3, 2, 4, 1),
    Sketcher.Constraint("Tangent", 4, 2, 5, 1),
    Sketcher.Constraint("Tangent", 5, 2, 6, 1),
    Sketcher.Constraint("Coincident", 6, 2, 7, 1),
    Sketcher.Constraint("Coincident", 7, 2, 0, 1),
    Sketcher.Constraint("Vertical", 0),
    Sketcher.Constraint("Horizontal", 2),
    Sketcher.Constraint("Vertical", 3),
    Sketcher.Constraint("Horizontal", 4),
    Sketcher.Constraint("Vertical", 6),
    Sketcher.Constraint("Horizontal", 7),
    Sketcher.Constraint("Equal", 1, 5),
    Sketcher.Constraint("PointOnObject", 0, 2, -2),
    Sketcher.Constraint("PointOnObject", 1, 1, -1),
    Sketcher.Constraint("Horizontal", 0, 2, 3, 2),
    Sketcher.Constraint("Vertical", 1, 1, 5, 2),
    Sketcher.Constraint("Equal", 2, 0),
    Sketcher.Constraint("Radius", 1, 1.2),
    Sketcher.Constraint("DistanceX", 2, 1, 2, 2, 23.8),
])
pocket18 = body.newObject("PartDesign::Pocket", "Pocket017")
pocket18.Profile = sketch19
pocket18.Length = 4
pocket18.Reversed = True

sketch20 = body.newObject("Sketcher::SketchObject", "Sketch019")
sketch20.AttachmentSupport = (doc.getObject("XY_Plane"), [""])
sketch20.MapMode = "FlatFace"
add_polygon(sketch20, [(1, 446), (1, 421), (25, 421), (25, 446)])
add_polygon(sketch20, [(1, 25), (1, 0), (25, 0), (25, 25)])
sketch20.addConstraint([
    Sketcher.Constraint("Vertical", 0),
    Sketcher.Constraint("Horizontal", 1),
    Sketcher.Constraint("Vertical", 2),
    Sketcher.Constraint("Horizontal", 3),
    Sketcher.Constraint("Vertical", 4),
    Sketcher.Constraint("Horizontal", 5),
    Sketcher.Constraint("Vertical", 6),
    Sketcher.Constraint("Horizontal", 7),
    Sketcher.Constraint("PointOnObject", 4, 2, -1),
    Sketcher.Constraint("Vertical", 3, 2, 4, 2),
    Sketcher.Constraint("Vertical", 2, 2, 5, 2),
    Sketcher.Constraint("Equal", 2, 4),
    Sketcher.Constraint("DistanceY", 0, 2, 0, 1, 25.0),
    Sketcher.Constraint("DistanceX", 1, 1, 1, 2, 23.8),
    Sketcher.Constraint("DistanceY", -1, 1, 0, 2, 421.0),
    Sketcher.Constraint("DistanceX", -1, 1, 1, 2, 25.0),
])
pocket19 = body.newObject("PartDesign::Pocket", "Pocket018")
pocket19.Profile = sketch20
pocket19.Length = 10

doc.recompute()
